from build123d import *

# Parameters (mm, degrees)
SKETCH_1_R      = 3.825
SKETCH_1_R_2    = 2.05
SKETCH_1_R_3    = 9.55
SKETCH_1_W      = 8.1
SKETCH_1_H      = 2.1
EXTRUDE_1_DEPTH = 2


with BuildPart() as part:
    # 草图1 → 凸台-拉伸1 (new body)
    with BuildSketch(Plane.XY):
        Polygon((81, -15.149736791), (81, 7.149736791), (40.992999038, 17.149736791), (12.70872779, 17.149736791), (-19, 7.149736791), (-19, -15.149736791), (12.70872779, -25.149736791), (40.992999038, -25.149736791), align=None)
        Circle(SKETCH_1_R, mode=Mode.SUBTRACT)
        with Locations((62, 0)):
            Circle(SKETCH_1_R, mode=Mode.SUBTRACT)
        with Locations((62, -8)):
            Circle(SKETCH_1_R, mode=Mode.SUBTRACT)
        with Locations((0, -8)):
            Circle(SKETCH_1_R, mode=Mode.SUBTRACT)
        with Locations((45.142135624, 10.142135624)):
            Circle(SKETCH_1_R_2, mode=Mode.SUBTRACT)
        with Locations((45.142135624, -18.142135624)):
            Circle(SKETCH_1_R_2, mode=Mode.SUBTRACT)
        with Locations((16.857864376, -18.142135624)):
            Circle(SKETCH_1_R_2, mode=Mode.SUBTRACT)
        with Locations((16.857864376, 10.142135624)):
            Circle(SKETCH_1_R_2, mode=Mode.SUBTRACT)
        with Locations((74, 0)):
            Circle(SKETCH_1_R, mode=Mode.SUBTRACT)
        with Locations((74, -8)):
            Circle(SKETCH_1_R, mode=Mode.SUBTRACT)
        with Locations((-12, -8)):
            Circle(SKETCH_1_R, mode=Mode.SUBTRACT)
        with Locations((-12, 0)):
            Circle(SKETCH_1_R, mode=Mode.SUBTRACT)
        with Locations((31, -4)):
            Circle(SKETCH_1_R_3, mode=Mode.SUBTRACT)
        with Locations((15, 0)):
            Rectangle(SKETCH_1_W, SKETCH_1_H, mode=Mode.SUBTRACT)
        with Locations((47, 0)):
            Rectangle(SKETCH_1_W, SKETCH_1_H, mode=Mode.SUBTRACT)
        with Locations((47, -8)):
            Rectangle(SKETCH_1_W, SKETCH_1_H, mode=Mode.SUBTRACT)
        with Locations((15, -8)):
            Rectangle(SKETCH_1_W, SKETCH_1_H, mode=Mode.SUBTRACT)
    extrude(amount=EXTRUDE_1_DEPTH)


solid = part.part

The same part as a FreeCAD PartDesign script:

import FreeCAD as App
import Part
import Sketcher
from FreeCAD import Vector

doc = App.newDocument("Part")
params = doc.addObject("Spreadsheet::Sheet", "Params")
for row, (alias, value) in enumerate([
    ("sketch1_diameter", "4.1 mm"),
    ("sketch1_diameter2", "19.1 mm"),
    ("sketch1_diameter3", "7.65 mm"),
    ("sketch1_width", "8.1 mm"),
    ("sketch1_height", "2.1 mm"),
    ("pad1_length", "2 mm"),
], start=1):
    params.set(f"A{row}", alias)
    params.set(f"B{row}", "=" + value)
    params.setAlias(f"B{row}", alias)

body = doc.addObject("PartDesign::Body", "Body")

# Sketch on XY plane
sketch1 = doc.addObject("Sketcher::SketchObject", "Sketch")
body.addObject(sketch1)
sketch1.AttachmentSupport = (doc.XY_Plane, [""])
sketch1.MapMode = "FlatFace"
sketch1.addGeometry([
    Part.LineSegment(Vector(81, -15.1, 0), Vector(81, 7.1, 0)),  # 0
    Part.LineSegment(Vector(81, 7.1, 0), Vector(41, 17.1, 0)),  # 1
    Part.LineSegment(Vector(41, 17.1, 0), Vector(12.7, 17.1, 0)),  # 2
    Part.LineSegment(Vector(12.7, 17.1, 0), Vector(-19, 7.1, 0)),  # 3
    Part.LineSegment(Vector(-19, 7.1, 0), Vector(-19, -15.1, 0)),  # 4
    Part.LineSegment(Vector(-19, -15.1, 0), Vector(12.7, -25.1, 0)),  # 5
    Part.LineSegment(Vector(12.7, -25.1, 0), Vector(41, -25.1, 0)),  # 6
    Part.LineSegment(Vector(41, -25.1, 0), Vector(81, -15.1, 0)),  # 7
    Part.Circle(Vector(16.9, -18.1, 0), Vector(0, 0, 1), 2),  # 8
    Part.Circle(Vector(-12, -8, 0), Vector(0, 0, 1), 3.8),  # 9
    Part.Circle(Vector(0, -8, 0), Vector(0, 0, 1), 3.8),  # 10
    Part.LineSegment(Vector(19.1, -9.1, 0), Vector(10.9, -9.1, 0)),  # 11
    Part.LineSegment(Vector(10.9, -9.1, 0), Vector(10.9, -7, 0)),  # 12
    Part.LineSegment(Vector(10.9, -7, 0), Vector(19.1, -7, 0)),  # 13
    Part.LineSegment(Vector(19.1, -7, 0), Vector(19.1, -9.1, 0)),  # 14
    Part.Circle(Vector(45.1, -18.1, 0), Vector(0, 0, 1), 2),  # 15
    Part.LineSegment(Vector(51, -9.1, 0), Vector(43, -9.1, 0)),  # 16
    Part.LineSegment(Vector(43, -9.1, 0), Vector(43, -7, 0)),  # 17
    Part.LineSegment(Vector(43, -7, 0), Vector(51, -7, 0)),  # 18
    Part.LineSegment(Vector(51, -7, 0), Vector(51, -9.1, 0)),  # 19
    Part.Circle(Vector(62, -8, 0), Vector(0, 0, 1), 3.8),  # 20
    Part.Circle(Vector(74, -8, 0), Vector(0, 0, 1), 3.8),  # 21
    Part.Circle(Vector(-12, 0, 0), Vector(0, 0, 1), 3.8),  # 22
    Part.Circle(Vector(0, 0, 0), Vector(0, 0, 1), 3.8),  # 23
    Part.LineSegment(Vector(19.1, -1.1, 0), Vector(10.9, -1.1, 0)),  # 24
    Part.LineSegment(Vector(10.9, -1.1, 0), Vector(10.9, 1.1, 0)),  # 25
    Part.LineSegment(Vector(10.9, 1.1, 0), Vector(19.1, 1.1, 0)),  # 26
    Part.LineSegment(Vector(19.1, 1.1, 0), Vector(19.1, -1.1, 0)),  # 27
    Part.Circle(Vector(31, -4, 0), Vector(0, 0, 1), 9.6),  # 28
    Part.Circle(Vector(16.9, 10.1, 0), Vector(0, 0, 1), 2),  # 29
    Part.LineSegment(Vector(51, -1.1, 0), Vector(43, -1.1, 0)),  # 30
    Part.LineSegment(Vector(43, -1.1, 0), Vector(43, 1.1, 0)),  # 31
    Part.LineSegment(Vector(43, 1.1, 0), Vector(51, 1.1, 0)),  # 32
    Part.LineSegment(Vector(51, 1.1, 0), Vector(51, -1.1, 0)),  # 33
    Part.Circle(Vector(62, 0, 0), Vector(0, 0, 1), 3.8),  # 34
    Part.Circle(Vector(74, 0, 0), Vector(0, 0, 1), 3.8),  # 35
    Part.Circle(Vector(45.1, 10.1, 0), Vector(0, 0, 1), 2),  # 36
], False)
sketch1.addConstraint([
    Sketcher.Constraint("Coincident", 0, 2, 1, 1),
    Sketcher.Constraint("Coincident", 1, 2, 2, 1),
    Sketcher.Constraint("Coincident", 2, 2, 3, 1),
    Sketcher.Constraint("Coincident", 3, 2, 4, 1),
    Sketcher.Constraint("Coincident", 4, 2, 5, 1),
    Sketcher.Constraint("Coincident", 5, 2, 6, 1),
    Sketcher.Constraint("Coincident", 6, 2, 7, 1),
    Sketcher.Constraint("Coincident", 7, 2, 0, 1),
    Sketcher.Constraint("Coincident", 11, 2, 12, 1),
    Sketcher.Constraint("Coincident", 12, 2, 13, 1),
    Sketcher.Constraint("Coincident", 13, 2, 14, 1),
    Sketcher.Constraint("Coincident", 14, 2, 11, 1),
    Sketcher.Constraint("Coincident", 16, 2, 17, 1),
    Sketcher.Constraint("Coincident", 17, 2, 18, 1),
    Sketcher.Constraint("Coincident", 18, 2, 19, 1),
    Sketcher.Constraint("Coincident", 19, 2, 16, 1),
    Sketcher.Constraint("Coincident", 24, 2, 25, 1),
    Sketcher.Constraint("Coincident", 25, 2, 26, 1),
    Sketcher.Constraint("Coincident", 26, 2, 27, 1),
    Sketcher.Constraint("Coincident", 27, 2, 24, 1),
    Sketcher.Constraint("Coincident", 30, 2, 31, 1),
    Sketcher.Constraint("Coincident", 31, 2, 32, 1),
    Sketcher.Constraint("Coincident", 32, 2, 33, 1),
    Sketcher.Constraint("Coincident", 33, 2, 30, 1),
    Sketcher.Constraint("Vertical", 0),
    Sketcher.Constraint("Horizontal", 2),
    Sketcher.Constraint("Vertical", 4),
    Sketcher.Constraint("Horizontal", 6),
    Sketcher.Constraint("Horizontal", 11),
    Sketcher.Constraint("Vertical", 12),
    Sketcher.Constraint("Horizontal", 13),
    Sketcher.Constraint("Vertical", 14),
    Sketcher.Constraint("Horizontal", 16),
    Sketcher.Constraint("Vertical", 17),
    Sketcher.Constraint("Horizontal", 18),
    Sketcher.Constraint("Vertical", 19),
    Sketcher.Constraint("Horizontal", 24),
    Sketcher.Constraint("Vertical", 25),
    Sketcher.Constraint("Horizontal", 26),
    Sketcher.Constraint("Vertical", 27),
    Sketcher.Constraint("Horizontal", 30),
    Sketcher.Constraint("Vertical", 31),
    Sketcher.Constraint("Horizontal", 32),
    Sketcher.Constraint("Vertical", 33),
    Sketcher.Constraint("Coincident", 23, 3, -1, 1),
    Sketcher.Constraint("Equal", 9, 10),
    Sketcher.Constraint("Equal", 8, 15),
    Sketcher.Constraint("Equal", 10, 20),
    Sketcher.Constraint("Equal", 20, 21),
    Sketcher.Constraint("Equal", 21, 22),
    Sketcher.Constraint("Equal", 22, 23),
    Sketcher.Constraint("Equal", 15, 29),
    Sketcher.Constraint("Equal", 23, 34),
    Sketcher.Constraint("Equal", 34, 35),
    Sketcher.Constraint("Equal", 29, 36),
    Sketcher.Constraint("PointOnObject", 10, 3, -2),
    Sketcher.Constraint("PointOnObject", 22, 3, -1),
    Sketcher.Constraint("PointOnObject", 34, 3, -1),
    Sketcher.Constraint("PointOnObject", 35, 3, -1),
    Sketcher.Constraint("Horizontal", 9, 3, 10, 3),
    Sketcher.Constraint("Horizontal", 8, 3, 15, 3),
    Sketcher.Constraint("Horizontal", 10, 3, 20, 3),
    Sketcher.Constraint("Horizontal", 20, 3, 21, 3),
    Sketcher.Constraint("Horizontal", 29, 3, 36, 3),
    Sketcher.Constraint("Horizontal", 0, 2, 3, 2),
    Sketcher.Constraint("Horizontal", 4, 2, 7, 2),
    Sketcher.Constraint("Horizontal", 14, 2, 16, 2),
    Sketcher.Constraint("Horizontal", 13, 2, 17, 2),
    Sketcher.Constraint("Horizontal", 27, 2, 30, 2),
    Sketcher.Constraint("Horizontal", 26, 2, 31, 2),
    Sketcher.Constraint("Vertical", 9, 3, 22, 3),
    Sketcher.Constraint("Vertical", 8, 3, 29, 3),
    Sketcher.Constraint("Vertical", 20, 3, 34, 3),
    Sketcher.Constraint("Vertical", 21, 3, 35, 3),
    Sketcher.Constraint("Vertical", 15, 3, 36, 3),
    Sketcher.Constraint("Vertical", 2, 2, 5, 2),
    Sketcher.Constraint("Vertical", 1, 2, 6, 2),
    Sketcher.Constraint("Vertical", 12, 2, 24, 2),
    Sketcher.Constraint("Vertical", 14, 2, 26, 2),
    Sketcher.Constraint("Vertical", 17, 2, 30, 2),
    Sketcher.Constraint("Vertical", 19, 2, 32, 2),
    Sketcher.Constraint("Equal", 13, 16),
    Sketcher.Constraint("Equal", 19, 25),
    Sketcher.Constraint("Equal", 3, 5),
    Sketcher.Constraint("Diameter", 8, 4.1),
    Sketcher.Constraint("Diameter", 28, 19.1),
    Sketcher.Constraint("Diameter", 9, 7.65),
    Sketcher.Constraint("DistanceX", 11, 2, 11, 1, 8.1),
    Sketcher.Constraint("DistanceY", 12, 1, 12, 2, 2.1),
    Sketcher.Constraint("DistanceX", 9, 3, -1, 1, 12.0),
    Sketcher.Constraint("DistanceY", 9, 3, -1, 1, 8.0),
    Sketcher.Constraint("DistanceX", -1, 1, 20, 3, 62.0),
    Sketcher.Constraint("DistanceX", -1, 1, 21, 3, 74.0),
    Sketcher.Constraint("DistanceX", -1, 1, 28, 3, 31.0),
    Sketcher.Constraint("DistanceY", 28, 3, -1, 1, 4.0),
    Sketcher.Constraint("DistanceX", -1, 1, 0, 2, 81.0),
    Sketcher.Constraint("DistanceX", 3, 2, -1, 1, 19.0),
    Sketcher.Constraint("DistanceY", 3, 2, 2, 2, 10.0),
    Sketcher.Constraint("DistanceY", 11, 2, 24, 2, 8.0),
    Sketcher.Constraint("DistanceX", -1, 1, 11, 2, 10.95),
    Sketcher.Constraint("DistanceY", 11, 2, -1, 1, 9.05),
    Sketcher.Constraint("DistanceX", -1, 1, 16, 2, 42.95),
    Sketcher.Constraint("DistanceX", -1, 1, 1, 2, 40.992999),
    Sketcher.Constraint("DistanceX", 2, 2, 2, 1, 28.284271),
    Sketcher.Constraint("DistanceY", 0, 2, 36, 3, 2.992399),
    Sketcher.Constraint("DistanceY", 5, 2, 8, 3, 7.007601),
    Sketcher.Constraint("DistanceY", 0, 1, 0, 2, 22.299474),
    Sketcher.Constraint("DistanceX", 8, 3, 15, 3, 28.284271),
    Sketcher.Constraint("DistanceX", -1, 1, 8, 3, 16.857864),
    Sketcher.Constraint("DistanceY", 8, 3, -1, 1, 18.142136),
])
sketch1.setExpression("Constraints[84]", "Params.sketch1_diameter")
sketch1.setExpression("Constraints[85]", "Params.sketch1_diameter2")
sketch1.setExpression("Constraints[86]", "Params.sketch1_diameter3")
sketch1.setExpression("Constraints[87]", "Params.sketch1_width")
sketch1.setExpression("Constraints[88]", "Params.sketch1_height")
pad1 = doc.addObject("PartDesign::Pad", "Pad")
body.addObject(pad1)
pad1.Profile = sketch1
pad1.setExpression("Length", "Params.pad1_length")

doc.recompute()
